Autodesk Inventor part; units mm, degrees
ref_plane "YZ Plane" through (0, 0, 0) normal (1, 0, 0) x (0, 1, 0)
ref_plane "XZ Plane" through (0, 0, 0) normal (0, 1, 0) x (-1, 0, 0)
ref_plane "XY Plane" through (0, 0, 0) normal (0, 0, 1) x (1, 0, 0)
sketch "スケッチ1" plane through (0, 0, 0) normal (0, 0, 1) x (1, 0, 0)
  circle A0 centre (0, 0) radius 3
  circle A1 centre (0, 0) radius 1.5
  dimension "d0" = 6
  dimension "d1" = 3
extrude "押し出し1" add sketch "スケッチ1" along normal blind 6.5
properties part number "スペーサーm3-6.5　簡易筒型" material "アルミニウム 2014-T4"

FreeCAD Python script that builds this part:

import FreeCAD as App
import Part
import Sketcher

doc = App.newDocument("Part")
body = doc.addObject("PartDesign::Body", "Body")

sketch1 = doc.addObject("Sketcher::SketchObject", "Sketch")
body.addObject(sketch1)
sketch1.AttachmentSupport = (doc.XY_Plane, [""])
sketch1.MapMode = "FlatFace"
sketch1.addGeometry([
    Part.Circle(App.Vector(0, 0, 0), App.Vector(0, 0, 1), 3),
    Part.Circle(App.Vector(0, 0, 0), App.Vector(0, 0, 1), 1.5),
], False)
sketch1.addConstraint([
    Sketcher.Constraint("Coincident", 0, 3, -1, 1),
    Sketcher.Constraint("Coincident", 1, 3, -1, 1),
    Sketcher.Constraint("Diameter", 0, 6.0),
    Sketcher.Constraint("Diameter", 1, 3.0),
])
pad1 = doc.addObject("PartDesign::Pad", "Pad")
body.addObject(pad1)
pad1.Profile = sketch1
pad1.Length = 6.5

doc.recompute()
